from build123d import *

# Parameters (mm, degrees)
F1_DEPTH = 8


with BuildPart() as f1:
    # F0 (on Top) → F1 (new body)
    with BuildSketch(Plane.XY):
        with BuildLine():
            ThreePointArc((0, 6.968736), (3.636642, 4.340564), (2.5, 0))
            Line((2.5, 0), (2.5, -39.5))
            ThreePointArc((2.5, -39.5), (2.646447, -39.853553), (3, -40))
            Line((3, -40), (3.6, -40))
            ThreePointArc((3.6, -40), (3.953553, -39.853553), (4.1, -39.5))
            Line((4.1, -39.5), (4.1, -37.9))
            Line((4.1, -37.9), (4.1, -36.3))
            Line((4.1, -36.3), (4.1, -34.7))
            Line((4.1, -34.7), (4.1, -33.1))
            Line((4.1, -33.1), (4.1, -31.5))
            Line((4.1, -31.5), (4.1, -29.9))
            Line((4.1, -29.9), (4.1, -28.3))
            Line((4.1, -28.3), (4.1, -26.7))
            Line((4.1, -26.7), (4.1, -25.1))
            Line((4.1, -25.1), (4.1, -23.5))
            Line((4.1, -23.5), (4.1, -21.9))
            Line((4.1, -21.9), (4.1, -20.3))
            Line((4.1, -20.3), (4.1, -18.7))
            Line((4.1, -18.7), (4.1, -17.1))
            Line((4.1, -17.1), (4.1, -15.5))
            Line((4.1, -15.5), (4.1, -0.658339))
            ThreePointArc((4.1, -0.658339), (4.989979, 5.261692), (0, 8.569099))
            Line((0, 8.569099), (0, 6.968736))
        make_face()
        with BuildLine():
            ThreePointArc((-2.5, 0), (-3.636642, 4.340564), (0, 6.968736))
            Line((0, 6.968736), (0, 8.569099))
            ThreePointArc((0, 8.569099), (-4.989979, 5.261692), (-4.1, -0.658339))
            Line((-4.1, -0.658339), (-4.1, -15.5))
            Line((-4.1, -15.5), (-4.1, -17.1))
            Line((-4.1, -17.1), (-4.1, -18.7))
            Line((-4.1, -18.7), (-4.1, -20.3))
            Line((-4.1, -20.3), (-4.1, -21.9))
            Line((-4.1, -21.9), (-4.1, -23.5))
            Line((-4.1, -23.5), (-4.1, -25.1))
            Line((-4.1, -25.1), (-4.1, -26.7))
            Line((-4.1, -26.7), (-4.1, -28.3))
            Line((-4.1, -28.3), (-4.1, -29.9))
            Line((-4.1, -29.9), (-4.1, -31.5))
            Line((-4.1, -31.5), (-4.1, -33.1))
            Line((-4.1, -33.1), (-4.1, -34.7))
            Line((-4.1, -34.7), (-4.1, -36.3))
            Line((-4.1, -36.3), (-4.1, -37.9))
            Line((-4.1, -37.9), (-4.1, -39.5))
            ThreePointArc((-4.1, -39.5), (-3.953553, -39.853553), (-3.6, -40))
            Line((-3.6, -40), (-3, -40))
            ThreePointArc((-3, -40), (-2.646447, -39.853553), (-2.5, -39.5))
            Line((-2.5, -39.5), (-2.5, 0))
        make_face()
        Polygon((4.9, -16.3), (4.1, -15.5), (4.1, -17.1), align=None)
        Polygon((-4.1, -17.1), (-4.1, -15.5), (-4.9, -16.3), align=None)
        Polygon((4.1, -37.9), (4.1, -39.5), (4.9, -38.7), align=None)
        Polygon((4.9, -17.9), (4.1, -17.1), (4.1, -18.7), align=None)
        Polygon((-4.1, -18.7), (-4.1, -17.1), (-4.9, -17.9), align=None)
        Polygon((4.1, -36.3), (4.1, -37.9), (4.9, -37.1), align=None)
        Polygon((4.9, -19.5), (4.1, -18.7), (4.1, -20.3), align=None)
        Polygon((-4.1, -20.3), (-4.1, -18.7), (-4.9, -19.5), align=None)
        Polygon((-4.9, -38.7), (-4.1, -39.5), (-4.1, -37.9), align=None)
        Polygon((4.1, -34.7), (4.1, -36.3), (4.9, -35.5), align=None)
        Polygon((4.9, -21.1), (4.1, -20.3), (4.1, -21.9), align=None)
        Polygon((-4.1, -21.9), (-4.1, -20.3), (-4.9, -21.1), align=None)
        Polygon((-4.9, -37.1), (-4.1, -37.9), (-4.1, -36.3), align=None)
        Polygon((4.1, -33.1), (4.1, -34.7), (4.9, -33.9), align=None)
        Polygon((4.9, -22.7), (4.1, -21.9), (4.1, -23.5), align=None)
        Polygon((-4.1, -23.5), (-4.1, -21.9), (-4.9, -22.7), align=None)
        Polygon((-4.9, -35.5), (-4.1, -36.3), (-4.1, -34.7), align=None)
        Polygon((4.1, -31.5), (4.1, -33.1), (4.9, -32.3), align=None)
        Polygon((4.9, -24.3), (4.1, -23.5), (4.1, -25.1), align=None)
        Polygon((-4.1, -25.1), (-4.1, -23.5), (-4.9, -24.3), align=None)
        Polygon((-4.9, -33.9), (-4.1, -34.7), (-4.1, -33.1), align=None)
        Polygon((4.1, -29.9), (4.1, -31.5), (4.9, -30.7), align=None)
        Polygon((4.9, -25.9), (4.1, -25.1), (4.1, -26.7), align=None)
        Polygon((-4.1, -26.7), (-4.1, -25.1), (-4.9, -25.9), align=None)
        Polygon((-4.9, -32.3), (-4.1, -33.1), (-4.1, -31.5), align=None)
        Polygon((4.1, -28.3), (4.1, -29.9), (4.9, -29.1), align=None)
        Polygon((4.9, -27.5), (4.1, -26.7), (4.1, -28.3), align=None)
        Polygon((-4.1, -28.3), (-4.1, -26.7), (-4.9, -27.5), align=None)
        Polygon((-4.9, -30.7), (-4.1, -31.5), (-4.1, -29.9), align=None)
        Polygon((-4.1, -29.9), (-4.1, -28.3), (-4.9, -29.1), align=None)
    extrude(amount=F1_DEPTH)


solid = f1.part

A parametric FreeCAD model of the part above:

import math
import FreeCAD as App
import Part
import Sketcher
from FreeCAD import Vector
Q = App.Units.Quantity

doc = App.newDocument("Part")
body = doc.addObject("PartDesign::Body", "Body")

# Sketch on XY plane
sketch1 = doc.addObject("Sketcher::SketchObject", "Sketch")
body.addObject(sketch1)
sketch1.AttachmentSupport = (doc.XY_Plane, [""])
sketch1.MapMode = "FlatFace"
sketch1.addGeometry([
    Part.ArcOfCircle(Part.Circle(Vector(-0.100173, 3, 0), Vector(0, 0, 1), 3.97), math.radians(-49.083726), math.radians(88.554127)),  # 0
    Part.LineSegment(Vector(2.5, 0, 0), Vector(2.5, -39.5, 0)),  # 1
    Part.ArcOfCircle(Part.Circle(Vector(3.000001, -39.499999, 0), Vector(0, 0, 1), 0.500001), math.radians(-179.999847), math.radians(-90.000153)),  # 2
    Part.LineSegment(Vector(3, -40, 0), Vector(3.6, -40, 0)),  # 3
    Part.ArcOfCircle(Part.Circle(Vector(3.599999, -39.499999, 0), Vector(0, 0, 1), 0.500001), math.radians(-89.999847), math.radians(-0.000153)),  # 4
    Part.LineSegment(Vector(4.1, -39.5, 0), Vector(4.9, -38.7, 0)),  # 5
    Part.LineSegment(Vector(4.9, -38.7, 0), Vector(4.1, -37.9, 0)),  # 6
    Part.LineSegment(Vector(4.1, -37.9, 0), Vector(4.9, -37.1, 0)),  # 7
    Part.LineSegment(Vector(4.9, -37.1, 0), Vector(4.1, -36.3, 0)),  # 8
    Part.LineSegment(Vector(4.1, -36.3, 0), Vector(4.9, -35.5, 0)),  # 9
    Part.LineSegment(Vector(4.9, -35.5, 0), Vector(4.1, -34.7, 0)),  # 10
    Part.LineSegment(Vector(4.1, -34.7, 0), Vector(4.9, -33.9, 0)),  # 11
    Part.LineSegment(Vector(4.9, -33.9, 0), Vector(4.1, -33.1, 0)),  # 12
    Part.LineSegment(Vector(4.1, -33.1, 0), Vector(4.9, -32.3, 0)),  # 13
    Part.LineSegment(Vector(4.9, -32.3, 0), Vector(4.1, -31.5, 0)),  # 14
    Part.LineSegment(Vector(4.1, -31.5, 0), Vector(4.9, -30.7, 0)),  # 15
    Part.LineSegment(Vector(4.9, -30.7, 0), Vector(4.1, -29.9, 0)),  # 16
    Part.LineSegment(Vector(4.1, -29.9, 0), Vector(4.9, -29.1, 0)),  # 17
    Part.LineSegment(Vector(4.9, -29.1, 0), Vector(4.1, -28.3, 0)),  # 18
    Part.LineSegment(Vector(4.1, -28.3, 0), Vector(4.9, -27.5, 0)),  # 19
    Part.LineSegment(Vector(4.9, -27.5, 0), Vector(4.1, -26.7, 0)),  # 20
    Part.LineSegment(Vector(4.1, -26.7, 0), Vector(4.9, -25.9, 0)),  # 21
    Part.LineSegment(Vector(4.9, -25.9, 0), Vector(4.1, -25.1, 0)),  # 22
    Part.LineSegment(Vector(4.1, -25.1, 0), Vector(4.9, -24.3, 0)),  # 23
    Part.LineSegment(Vector(4.9, -24.3, 0), Vector(4.1, -23.5, 0)),  # 24
    Part.LineSegment(Vector(4.1, -23.5, 0), Vector(4.9, -22.7, 0)),  # 25
    Part.LineSegment(Vector(4.9, -22.7, 0), Vector(4.1, -21.9, 0)),  # 26
    Part.LineSegment(Vector(4.1, -21.9, 0), Vector(4.9, -21.1, 0)),  # 27
    Part.LineSegment(Vector(4.9, -21.1, 0), Vector(4.1, -20.3, 0)),  # 28
    Part.LineSegment(Vector(4.1, -20.3, 0), Vector(4.9, -19.5, 0)),  # 29
    Part.LineSegment(Vector(4.9, -19.5, 0), Vector(4.1, -18.7, 0)),  # 30
    Part.LineSegment(Vector(4.1, -18.7, 0), Vector(4.9, -17.9, 0)),  # 31
    Part.LineSegment(Vector(4.9, -17.9, 0), Vector(4.1, -17.1, 0)),  # 32
    Part.LineSegment(Vector(4.1, -17.1, 0), Vector(4.9, -16.3, 0)),  # 33
    Part.LineSegment(Vector(4.9, -16.3, 0), Vector(4.1, -15.5, 0)),  # 34
    Part.LineSegment(Vector(4.1, -15.5, 0), Vector(4.1, -0.658339, 0)),  # 35
    Part.ArcOfCircle(Part.Circle(Vector(-0.100173, 3, 0), Vector(0, 0, 1), 5.57), math.radians(-41.055775), math.radians(88.969515)),  # 36
    Part.ArcOfCircle(Part.Circle(Vector(0.100173, 3, 0), Vector(0, 0, 1), 5.57), math.radians(91.030485), math.radians(221.055775)),  # 37
    Part.LineSegment(Vector(-4.1, -0.658339, 0), Vector(-4.1, -15.5, 0)),  # 38
    Part.LineSegment(Vector(-4.1, -15.5, 0), Vector(-4.9, -16.3, 0)),  # 39
    Part.LineSegment(Vector(-4.9, -16.3, 0), Vector(-4.1, -17.1, 0)),  # 40
    Part.LineSegment(Vector(-4.1, -17.1, 0), Vector(-4.9, -17.9, 0)),  # 41
    Part.LineSegment(Vector(-4.9, -17.9, 0), Vector(-4.1, -18.7, 0)),  # 42
    Part.LineSegment(Vector(-4.1, -18.7, 0), Vector(-4.9, -19.5, 0)),  # 43
    Part.LineSegment(Vector(-4.9, -19.5, 0), Vector(-4.1, -20.3, 0)),  # 44
    Part.LineSegment(Vector(-4.1, -20.3, 0), Vector(-4.9, -21.1, 0)),  # 45
    Part.LineSegment(Vector(-4.9, -21.1, 0), Vector(-4.1, -21.9, 0)),  # 46
    Part.LineSegment(Vector(-4.1, -21.9, 0), Vector(-4.9, -22.7, 0)),  # 47
    Part.LineSegment(Vector(-4.9, -22.7, 0), Vector(-4.1, -23.5, 0)),  # 48
    Part.LineSegment(Vector(-4.1, -23.5, 0), Vector(-4.9, -24.3, 0)),  # 49
    Part.LineSegment(Vector(-4.9, -24.3, 0), Vector(-4.1, -25.1, 0)),  # 50
    Part.LineSegment(Vector(-4.1, -25.1, 0), Vector(-4.9, -25.9, 0)),  # 51
    Part.LineSegment(Vector(-4.9, -25.9, 0), Vector(-4.1, -26.7, 0)),  # 52
    Part.LineSegment(Vector(-4.1, -26.7, 0), Vector(-4.9, -27.5, 0)),  # 53
    Part.LineSegment(Vector(-4.9, -27.5, 0), Vector(-4.1, -28.3, 0)),  # 54
    Part.LineSegment(Vector(-4.1, -28.3, 0), Vector(-4.9, -29.1, 0)),  # 55
    Part.LineSegment(Vector(-4.9, -29.1, 0), Vector(-4.1, -29.9, 0)),  # 56
    Part.LineSegment(Vector(-4.1, -29.9, 0), Vector(-4.9, -30.7, 0)),  # 57
    Part.LineSegment(Vector(-4.9, -30.7, 0), Vector(-4.1, -31.5, 0)),  # 58
    Part.LineSegment(Vector(-4.1, -31.5, 0), Vector(-4.9, -32.3, 0)),  # 59
    Part.LineSegment(Vector(-4.9, -32.3, 0), Vector(-4.1, -33.1, 0)),  # 60
    Part.LineSegment(Vector(-4.1, -33.1, 0), Vector(-4.9, -33.9, 0)),  # 61
    Part.LineSegment(Vector(-4.9, -33.9, 0), Vector(-4.1, -34.7, 0)),  # 62
    Part.LineSegment(Vector(-4.1, -34.7, 0), Vector(-4.9, -35.5, 0)),  # 63
    Part.LineSegment(Vector(-4.9, -35.5, 0), Vector(-4.1, -36.3, 0)),  # 64
    Part.LineSegment(Vector(-4.1, -36.3, 0), Vector(-4.9, -37.1, 0)),  # 65
    Part.LineSegment(Vector(-4.9, -37.1, 0), Vector(-4.1, -37.9, 0)),  # 66
    Part.LineSegment(Vector(-4.1, -37.9, 0), Vector(-4.9, -38.7, 0)),  # 67
    Part.LineSegment(Vector(-4.9, -38.7, 0), Vector(-4.1, -39.5, 0)),  # 68
    Part.ArcOfCircle(Part.Circle(Vector(-3.599999, -39.499999, 0), Vector(0, 0, 1), 0.500001), math.radians(-179.999847), math.radians(-90.000153)),  # 69
    Part.LineSegment(Vector(-3.6, -40, 0), Vector(-3, -40, 0)),  # 70
    Part.ArcOfCircle(Part.Circle(Vector(-3.000001, -39.499999, 0), Vector(0, 0, 1), 0.500001), math.radians(-89.999847), math.radians(-0.000153)),  # 71
    Part.LineSegment(Vector(-2.5, -39.5, 0), Vector(-2.5, 0, 0)),  # 72
    Part.ArcOfCircle(Part.Circle(Vector(0.100173, 3, 0), Vector(0, 0, 1), 3.97), math.radians(91.445873), math.radians(229.083726)),  # 73
], False)
sketch1.addConstraint([
    Sketcher.Constraint("Coincident", 0, 1, 1, 1),
    Sketcher.Constraint("Coincident", 1, 2, 2, 1),
    Sketcher.Constraint("Coincident", 2, 2, 3, 1),
    Sketcher.Constraint("Coincident", 3, 2, 4, 1),
    Sketcher.Constraint("Coincident", 4, 2, 5, 1),
    Sketcher.Constraint("Coincident", 5, 2, 6, 1),
    Sketcher.Constraint("Coincident", 6, 2, 7, 1),
    Sketcher.Constraint("Coincident", 7, 2, 8, 1),
    Sketcher.Constraint("Coincident", 8, 2, 9, 1),
    Sketcher.Constraint("Coincident", 9, 2, 10, 1),
    Sketcher.Constraint("Coincident", 10, 2, 11, 1),
    Sketcher.Constraint("Coincident", 11, 2, 12, 1),
    Sketcher.Constraint("Coincident", 12, 2, 13, 1),
    Sketcher.Constraint("Coincident", 13, 2, 14, 1),
    Sketcher.Constraint("Coincident", 14, 2, 15, 1),
    Sketcher.Constraint("Coincident", 15, 2, 16, 1),
    Sketcher.Constraint("Coincident", 16, 2, 17, 1),
    Sketcher.Constraint("Coincident", 17, 2, 18, 1),
    Sketcher.Constraint("Coincident", 18, 2, 19, 1),
    Sketcher.Constraint("Coincident", 19, 2, 20, 1),
    Sketcher.Constraint("Coincident", 20, 2, 21, 1),
    Sketcher.Constraint("Coincident", 21, 2, 22, 1),
    Sketcher.Constraint("Coincident", 22, 2, 23, 1),
    Sketcher.Constraint("Coincident", 23, 2, 24, 1),
    Sketcher.Constraint("Coincident", 24, 2, 25, 1),
    Sketcher.Constraint("Coincident", 25, 2, 26, 1),
    Sketcher.Constraint("Coincident", 26, 2, 27, 1),
    Sketcher.Constraint("Coincident", 27, 2, 28, 1),
    Sketcher.Constraint("Coincident", 28, 2, 29, 1),
    Sketcher.Constraint("Coincident", 29, 2, 30, 1),
    Sketcher.Constraint("Coincident", 30, 2, 31, 1),
    Sketcher.Constraint("Coincident", 31, 2, 32, 1),
    Sketcher.Constraint("Coincident", 32, 2, 33, 1),
    Sketcher.Constraint("Coincident", 33, 2, 34, 1),
    Sketcher.Constraint("Coincident", 34, 2, 35, 1),
    Sketcher.Constraint("Coincident", 35, 2, 36, 1),
    Sketcher.Constraint("Coincident", 36, 2, 37, 1),
    Sketcher.Constraint("Coincident", 37, 2, 38, 1),
    Sketcher.Constraint("Coincident", 38, 2, 39, 1),
    Sketcher.Constraint("Coincident", 39, 2, 40, 1),
    Sketcher.Constraint("Coincident", 40, 2, 41, 1),
    Sketcher.Constraint("Coincident", 41, 2, 42, 1),
    Sketcher.Constraint("Coincident", 42, 2, 43, 1),
    Sketcher.Constraint("Coincident", 43, 2, 44, 1),
    Sketcher.Constraint("Coincident", 44, 2, 45, 1),
    Sketcher.Constraint("Coincident", 45, 2, 46, 1),
    Sketcher.Constraint("Coincident", 46, 2, 47, 1),
    Sketcher.Constraint("Coincident", 47, 2, 48, 1),
    Sketcher.Constraint("Coincident", 48, 2, 49, 1),
    Sketcher.Constraint("Coincident", 49, 2, 50, 1),
    Sketcher.Constraint("Coincident", 50, 2, 51, 1),
    Sketcher.Constraint("Coincident", 51, 2, 52, 1),
    Sketcher.Constraint("Coincident", 52, 2, 53, 1),
    Sketcher.Constraint("Coincident", 53, 2, 54, 1),
    Sketcher.Constraint("Coincident", 54, 2, 55, 1),
    Sketcher.Constraint("Coincident", 55, 2, 56, 1),
    Sketcher.Constraint("Coincident", 56, 2, 57, 1),
    Sketcher.Constraint("Coincident", 57, 2, 58, 1),
    Sketcher.Constraint("Coincident", 58, 2, 59, 1),
    Sketcher.Constraint("Coincident", 59, 2, 60, 1),
    Sketcher.Constraint("Coincident", 60, 2, 61, 1),
    Sketcher.Constraint("Coincident", 61, 2, 62, 1),
    Sketcher.Constraint("Coincident", 62, 2, 63, 1),
    Sketcher.Constraint("Coincident", 63, 2, 64, 1),
    Sketcher.Constraint("Coincident", 64, 2, 65, 1),
    Sketcher.Constraint("Coincident", 65, 2, 66, 1),
    Sketcher.Constraint("Coincident", 66, 2, 67, 1),
    Sketcher.Constraint("Coincident", 67, 2, 68, 1),
    Sketcher.Constraint("Coincident", 68, 2, 69, 1),
    Sketcher.Constraint("Coincident", 69, 2, 70, 1),
    Sketcher.Constraint("Coincident", 70, 2, 71, 1),
    Sketcher.Constraint("Coincident", 71, 2, 72, 1),
    Sketcher.Constraint("Coincident", 72, 2, 73, 2),
    Sketcher.Constraint("Coincident", 73, 1, 0, 2),
    Sketcher.Constraint("Vertical", 1),
    Sketcher.Constraint("Horizontal", 3),
    Sketcher.Constraint("Vertical", 35),
    Sketcher.Constraint("Vertical", 38),
    Sketcher.Constraint("Horizontal", 70),
    Sketcher.Constraint("Vertical", 72),
    Sketcher.Constraint("Coincident", 36, 3, 0, 3),
    Sketcher.Constraint("Coincident", 73, 3, 37, 3),
    Sketcher.Constraint("PointOnObject", 0, 1, -1),
    Sketcher.Constraint("PointOnObject", 36, 2, -2),
    Sketcher.Constraint("PointOnObject", 72, 2, -1),
    Sketcher.Constraint("PointOnObject", 73, 1, -2),
    Sketcher.Constraint("Radius", 2, Q("0.500001 mm")),
    Sketcher.Constraint("Radius", 4, Q("0.500001 mm")),
    Sketcher.Constraint("Radius", 69, Q("0.500001 mm")),
    Sketcher.Constraint("Radius", 71, Q("0.500001 mm")),
    Sketcher.Constraint("Radius", 0, Q("3.97 mm")),
    Sketcher.Constraint("Radius", 36, Q("5.57 mm")),
    Sketcher.Constraint("Radius", 37, Q("5.57 mm")),
    Sketcher.Constraint("Radius", 73, Q("3.97 mm")),
    Sketcher.Constraint("DistanceX", 3, 1, 3, 2, Q("0.6 mm")),
    Sketcher.Constraint("DistanceX", 70, 1, 70, 2, Q("0.6 mm")),
    Sketcher.Constraint("DistanceY", 1, 2, 1, 1, Q("39.5 mm")),
    Sketcher.Constraint("DistanceY", 72, 1, 72, 2, Q("39.5 mm")),
    Sketcher.Constraint("DistanceY", -1, 1, 0, 3, Q("3 mm")),
    Sketcher.Constraint("DistanceX", -1, 1, 2, 3, Q("3.000001 mm")),
    Sketcher.Constraint("DistanceX", -1, 1, 2, 2, Q("3 mm")),
    Sketcher.Constraint("DistanceY", 2, 2, -1, 1, Q("40 mm")),
    Sketcher.Constraint("DistanceY", 69, 2, -1, 1, Q("40 mm")),
    Sketcher.Constraint("DistanceX", 70, 2, -1, 1, Q("3 mm")),
    Sketcher.Constraint("DistanceX", -1, 1, 4, 3, Q("3.599999 mm")),
    Sketcher.Constraint("DistanceX", 69, 3, -1, 1, Q("3.599999 mm")),
    Sketcher.Constraint("DistanceY", 4, 2, -1, 1, Q("39.5 mm")),
    Sketcher.Constraint("DistanceX", -1, 1, 5, 2, Q("4.9 mm")),
    Sketcher.Constraint("DistanceY", 5, 2, -1, 1, Q("38.7 mm")),
    Sketcher.Constraint("DistanceX", -1, 1, 6, 2, Q("4.1 mm")),
    Sketcher.Constraint("DistanceY", 6, 2, -1, 1, Q("37.9 mm")),
    Sketcher.Constraint("DistanceX", -1, 1, 7, 2, Q("4.9 mm")),
    Sketcher.Constraint("DistanceY", 7, 2, -1, 1, Q("37.1 mm")),
    Sketcher.Constraint("DistanceX", -1, 1, 8, 2, Q("4.1 mm")),
    Sketcher.Constraint("DistanceY", 8, 2, -1, 1, Q("36.3 mm")),
    Sketcher.Constraint("DistanceX", -1, 1, 9, 2, Q("4.9 mm")),
    Sketcher.Constraint("DistanceY", 9, 2, -1, 1, Q("35.5 mm")),
    Sketcher.Constraint("DistanceX", -1, 1, 10, 2, Q("4.1 mm")),
    Sketcher.Constraint("DistanceY", 10, 2, -1, 1, Q("34.7 mm")),
    Sketcher.Constraint("DistanceX", -1, 1, 11, 2, Q("4.9 mm")),
    Sketcher.Constraint("DistanceY", 11, 2, -1, 1, Q("33.9 mm")),
    Sketcher.Constraint("DistanceX", -1, 1, 12, 2, Q("4.1 mm")),
    Sketcher.Constraint("DistanceY", 12, 2, -1, 1, Q("33.1 mm")),
    Sketcher.Constraint("DistanceX", -1, 1, 13, 2, Q("4.9 mm")),
    Sketcher.Constraint("DistanceY", 13, 2, -1, 1, Q("32.3 mm")),
    Sketcher.Constraint("DistanceX", -1, 1, 14, 2, Q("4.1 mm")),
    Sketcher.Constraint("DistanceY", 14, 2, -1, 1, Q("31.5 mm")),
    Sketcher.Constraint("DistanceX", -1, 1, 15, 2, Q("4.9 mm")),
    Sketcher.Constraint("DistanceY", 15, 2, -1, 1, Q("30.7 mm")),
    Sketcher.Constraint("DistanceX", -1, 1, 16, 2, Q("4.1 mm")),
    Sketcher.Constraint("DistanceY", 16, 2, -1, 1, Q("29.9 mm")),
    Sketcher.Constraint("DistanceX", -1, 1, 17, 2, Q("4.9 mm")),
    Sketcher.Constraint("DistanceY", 17, 2, -1, 1, Q("29.1 mm")),
    Sketcher.Constraint("DistanceX", -1, 1, 18, 2, Q("4.1 mm")),
    Sketcher.Constraint("DistanceY", 18, 2, -1, 1, Q("28.3 mm")),
    Sketcher.Constraint("DistanceX", -1, 1, 19, 2, Q("4.9 mm")),
    Sketcher.Constraint("DistanceY", 19, 2, -1, 1, Q("27.5 mm")),
    Sketcher.Constraint("DistanceX", -1, 1, 20, 2, Q("4.1 mm")),
    Sketcher.Constraint("DistanceY", 20, 2, -1, 1, Q("26.7 mm")),
    Sketcher.Constraint("DistanceX", -1, 1, 21, 2, Q("4.9 mm")),
    Sketcher.Constraint("DistanceY", 21, 2, -1, 1, Q("25.9 mm")),
    Sketcher.Constraint("DistanceX", -1, 1, 22, 2, Q("4.1 mm")),
    Sketcher.Constraint("DistanceY", 22, 2, -1, 1, Q("25.1 mm")),
    Sketcher.Constraint("DistanceX", -1, 1, 23, 2, Q("4.9 mm")),
    Sketcher.Constraint("DistanceY", 23, 2, -1, 1, Q("24.3 mm")),
    Sketcher.Constraint("DistanceX", -1, 1, 24, 2, Q("4.1 mm")),
    Sketcher.Constraint("DistanceY", 24, 2, -1, 1, Q("23.5 mm")),
    Sketcher.Constraint("DistanceX", -1, 1, 25, 2, Q("4.9 mm")),
    Sketcher.Constraint("DistanceY", 25, 2, -1, 1, Q("22.7 mm")),
    Sketcher.Constraint("DistanceX", -1, 1, 26, 2, Q("4.1 mm")),
    Sketcher.Constraint("DistanceY", 26, 2, -1, 1, Q("21.9 mm")),
    Sketcher.Constraint("DistanceX", -1, 1, 27, 2, Q("4.9 mm")),
    Sketcher.Constraint("DistanceY", 27, 2, -1, 1, Q("21.1 mm")),
    Sketcher.Constraint("DistanceX", -1, 1, 28, 2, Q("4.1 mm")),
    Sketcher.Constraint("DistanceY", 28, 2, -1, 1, Q("20.3 mm")),
    Sketcher.Constraint("DistanceX", -1, 1, 29, 2, Q("4.9 mm")),
    Sketcher.Constraint("DistanceY", 29, 2, -1, 1, Q("19.5 mm")),
    Sketcher.Constraint("DistanceX", -1, 1, 30, 2, Q("4.1 mm")),
    Sketcher.Constraint("DistanceY", 30, 2, -1, 1, Q("18.7 mm")),
    Sketcher.Constraint("DistanceX", -1, 1, 31, 2, Q("4.9 mm")),
    Sketcher.Constraint("DistanceY", 31, 2, -1, 1, Q("17.9 mm")),
    Sketcher.Constraint("DistanceX", -1, 1, 32, 2, Q("4.1 mm")),
    Sketcher.Constraint("DistanceY", 32, 2, -1, 1, Q("17.1 mm")),
    Sketcher.Constraint("DistanceX", -1, 1, 33, 2, Q("4.9 mm")),
    Sketcher.Constraint("DistanceY", 33, 2, -1, 1, Q("16.3 mm")),
    Sketcher.Constraint("DistanceX", -1, 1, 34, 2, Q("4.1 mm")),
    Sketcher.Constraint("DistanceY", 34, 2, -1, 1, Q("15.5 mm")),
    Sketcher.Constraint("DistanceX", 37, 2, -1, 1, Q("4.1 mm")),
    Sketcher.Constraint("DistanceY", 38, 2, -1, 1, Q("15.5 mm")),
    Sketcher.Constraint("DistanceX", 39, 2, -1, 1, Q("4.9 mm")),
    Sketcher.Constraint("DistanceY", 39, 2, -1, 1, Q("16.3 mm")),
    Sketcher.Constraint("DistanceX", 40, 2, -1, 1, Q("4.1 mm")),
    Sketcher.Constraint("DistanceY", 40, 2, -1, 1, Q("17.1 mm")),
    Sketcher.Constraint("DistanceX", 41, 2, -1, 1, Q("4.9 mm")),
    Sketcher.Constraint("DistanceY", 41, 2, -1, 1, Q("17.9 mm")),
    Sketcher.Constraint("DistanceX", 42, 2, -1, 1, Q("4.1 mm")),
    Sketcher.Constraint("DistanceY", 42, 2, -1, 1, Q("18.7 mm")),
    Sketcher.Constraint("DistanceX", 43, 2, -1, 1, Q("4.9 mm")),
    Sketcher.Constraint("DistanceY", 43, 2, -1, 1, Q("19.5 mm")),
    Sketcher.Constraint("DistanceX", 44, 2, -1, 1, Q("4.1 mm")),
    Sketcher.Constraint("DistanceY", 44, 2, -1, 1, Q("20.3 mm")),
    Sketcher.Constraint("DistanceX", 45, 2, -1, 1, Q("4.9 mm")),
    Sketcher.Constraint("DistanceY", 45, 2, -1, 1, Q("21.1 mm")),
    Sketcher.Constraint("DistanceX", 46, 2, -1, 1, Q("4.1 mm")),
    Sketcher.Constraint("DistanceY", 46, 2, -1, 1, Q("21.9 mm")),
    Sketcher.Constraint("DistanceX", 47, 2, -1, 1, Q("4.9 mm")),
    Sketcher.Constraint("DistanceY", 47, 2, -1, 1, Q("22.7 mm")),
    Sketcher.Constraint("DistanceX", 48, 2, -1, 1, Q("4.1 mm")),
    Sketcher.Constraint("DistanceY", 48, 2, -1, 1, Q("23.5 mm")),
    Sketcher.Constraint("DistanceX", 49, 2, -1, 1, Q("4.9 mm")),
    Sketcher.Constraint("DistanceY", 49, 2, -1, 1, Q("24.3 mm")),
    Sketcher.Constraint("DistanceX", 50, 2, -1, 1, Q("4.1 mm")),
    Sketcher.Constraint("DistanceY", 50, 2, -1, 1, Q("25.1 mm")),
    Sketcher.Constraint("DistanceX", 51, 2, -1, 1, Q("4.9 mm")),
    Sketcher.Constraint("DistanceY", 51, 2, -1, 1, Q("25.9 mm")),
    Sketcher.Constraint("DistanceX", 52, 2, -1, 1, Q("4.1 mm")),
    Sketcher.Constraint("DistanceY", 52, 2, -1, 1, Q("26.7 mm")),
    Sketcher.Constraint("DistanceX", 53, 2, -1, 1, Q("4.9 mm")),
    Sketcher.Constraint("DistanceY", 53, 2, -1, 1, Q("27.5 mm")),
    Sketcher.Constraint("DistanceX", 54, 2, -1, 1, Q("4.1 mm")),
    Sketcher.Constraint("DistanceY", 54, 2, -1, 1, Q("28.3 mm")),
    Sketcher.Constraint("DistanceX", 55, 2, -1, 1, Q("4.9 mm")),
    Sketcher.Constraint("DistanceY", 55, 2, -1, 1, Q("29.1 mm")),
    Sketcher.Constraint("DistanceX", 56, 2, -1, 1, Q("4.1 mm")),
    Sketcher.Constraint("DistanceY", 56, 2, -1, 1, Q("29.9 mm")),
    Sketcher.Constraint("DistanceX", 57, 2, -1, 1, Q("4.9 mm")),
    Sketcher.Constraint("DistanceY", 57, 2, -1, 1, Q("30.7 mm")),
    Sketcher.Constraint("DistanceX", 58, 2, -1, 1, Q("4.1 mm")),
    Sketcher.Constraint("DistanceY", 58, 2, -1, 1, Q("31.5 mm")),
    Sketcher.Constraint("DistanceX", 59, 2, -1, 1, Q("4.9 mm")),
    Sketcher.Constraint("DistanceY", 59, 2, -1, 1, Q("32.3 mm")),
    Sketcher.Constraint("DistanceX", 60, 2, -1, 1, Q("4.1 mm")),
    Sketcher.Constraint("DistanceY", 60, 2, -1, 1, Q("33.1 mm")),
    Sketcher.Constraint("DistanceX", 61, 2, -1, 1, Q("4.9 mm")),
    Sketcher.Constraint("DistanceY", 61, 2, -1, 1, Q("33.9 mm")),
    Sketcher.Constraint("DistanceX", 62, 2, -1, 1, Q("4.1 mm")),
    Sketcher.Constraint("DistanceY", 62, 2, -1, 1, Q("34.7 mm")),
    Sketcher.Constraint("DistanceX", 63, 2, -1, 1, Q("4.9 mm")),
    Sketcher.Constraint("DistanceY", 63, 2, -1, 1, Q("35.5 mm")),
    Sketcher.Constraint("DistanceX", 64, 2, -1, 1, Q("4.1 mm")),
    Sketcher.Constraint("DistanceY", 64, 2, -1, 1, Q("36.3 mm")),
    Sketcher.Constraint("DistanceX", 65, 2, -1, 1, Q("4.9 mm")),
    Sketcher.Constraint("DistanceY", 65, 2, -1, 1, Q("37.1 mm")),
    Sketcher.Constraint("DistanceX", 66, 2, -1, 1, Q("4.1 mm")),
    Sketcher.Constraint("DistanceY", 66, 2, -1, 1, Q("37.9 mm")),
    Sketcher.Constraint("DistanceX", 67, 2, -1, 1, Q("4.9 mm")),
    Sketcher.Constraint("DistanceY", 67, 2, -1, 1, Q("38.7 mm")),
    Sketcher.Constraint("DistanceY", 68, 2, -1, 1, Q("39.5 mm")),
])
pad1 = doc.addObject("PartDesign::Pad", "Pad")
body.addObject(pad1)
pad1.Profile = sketch1
pad1.Length = 8

doc.recompute()
